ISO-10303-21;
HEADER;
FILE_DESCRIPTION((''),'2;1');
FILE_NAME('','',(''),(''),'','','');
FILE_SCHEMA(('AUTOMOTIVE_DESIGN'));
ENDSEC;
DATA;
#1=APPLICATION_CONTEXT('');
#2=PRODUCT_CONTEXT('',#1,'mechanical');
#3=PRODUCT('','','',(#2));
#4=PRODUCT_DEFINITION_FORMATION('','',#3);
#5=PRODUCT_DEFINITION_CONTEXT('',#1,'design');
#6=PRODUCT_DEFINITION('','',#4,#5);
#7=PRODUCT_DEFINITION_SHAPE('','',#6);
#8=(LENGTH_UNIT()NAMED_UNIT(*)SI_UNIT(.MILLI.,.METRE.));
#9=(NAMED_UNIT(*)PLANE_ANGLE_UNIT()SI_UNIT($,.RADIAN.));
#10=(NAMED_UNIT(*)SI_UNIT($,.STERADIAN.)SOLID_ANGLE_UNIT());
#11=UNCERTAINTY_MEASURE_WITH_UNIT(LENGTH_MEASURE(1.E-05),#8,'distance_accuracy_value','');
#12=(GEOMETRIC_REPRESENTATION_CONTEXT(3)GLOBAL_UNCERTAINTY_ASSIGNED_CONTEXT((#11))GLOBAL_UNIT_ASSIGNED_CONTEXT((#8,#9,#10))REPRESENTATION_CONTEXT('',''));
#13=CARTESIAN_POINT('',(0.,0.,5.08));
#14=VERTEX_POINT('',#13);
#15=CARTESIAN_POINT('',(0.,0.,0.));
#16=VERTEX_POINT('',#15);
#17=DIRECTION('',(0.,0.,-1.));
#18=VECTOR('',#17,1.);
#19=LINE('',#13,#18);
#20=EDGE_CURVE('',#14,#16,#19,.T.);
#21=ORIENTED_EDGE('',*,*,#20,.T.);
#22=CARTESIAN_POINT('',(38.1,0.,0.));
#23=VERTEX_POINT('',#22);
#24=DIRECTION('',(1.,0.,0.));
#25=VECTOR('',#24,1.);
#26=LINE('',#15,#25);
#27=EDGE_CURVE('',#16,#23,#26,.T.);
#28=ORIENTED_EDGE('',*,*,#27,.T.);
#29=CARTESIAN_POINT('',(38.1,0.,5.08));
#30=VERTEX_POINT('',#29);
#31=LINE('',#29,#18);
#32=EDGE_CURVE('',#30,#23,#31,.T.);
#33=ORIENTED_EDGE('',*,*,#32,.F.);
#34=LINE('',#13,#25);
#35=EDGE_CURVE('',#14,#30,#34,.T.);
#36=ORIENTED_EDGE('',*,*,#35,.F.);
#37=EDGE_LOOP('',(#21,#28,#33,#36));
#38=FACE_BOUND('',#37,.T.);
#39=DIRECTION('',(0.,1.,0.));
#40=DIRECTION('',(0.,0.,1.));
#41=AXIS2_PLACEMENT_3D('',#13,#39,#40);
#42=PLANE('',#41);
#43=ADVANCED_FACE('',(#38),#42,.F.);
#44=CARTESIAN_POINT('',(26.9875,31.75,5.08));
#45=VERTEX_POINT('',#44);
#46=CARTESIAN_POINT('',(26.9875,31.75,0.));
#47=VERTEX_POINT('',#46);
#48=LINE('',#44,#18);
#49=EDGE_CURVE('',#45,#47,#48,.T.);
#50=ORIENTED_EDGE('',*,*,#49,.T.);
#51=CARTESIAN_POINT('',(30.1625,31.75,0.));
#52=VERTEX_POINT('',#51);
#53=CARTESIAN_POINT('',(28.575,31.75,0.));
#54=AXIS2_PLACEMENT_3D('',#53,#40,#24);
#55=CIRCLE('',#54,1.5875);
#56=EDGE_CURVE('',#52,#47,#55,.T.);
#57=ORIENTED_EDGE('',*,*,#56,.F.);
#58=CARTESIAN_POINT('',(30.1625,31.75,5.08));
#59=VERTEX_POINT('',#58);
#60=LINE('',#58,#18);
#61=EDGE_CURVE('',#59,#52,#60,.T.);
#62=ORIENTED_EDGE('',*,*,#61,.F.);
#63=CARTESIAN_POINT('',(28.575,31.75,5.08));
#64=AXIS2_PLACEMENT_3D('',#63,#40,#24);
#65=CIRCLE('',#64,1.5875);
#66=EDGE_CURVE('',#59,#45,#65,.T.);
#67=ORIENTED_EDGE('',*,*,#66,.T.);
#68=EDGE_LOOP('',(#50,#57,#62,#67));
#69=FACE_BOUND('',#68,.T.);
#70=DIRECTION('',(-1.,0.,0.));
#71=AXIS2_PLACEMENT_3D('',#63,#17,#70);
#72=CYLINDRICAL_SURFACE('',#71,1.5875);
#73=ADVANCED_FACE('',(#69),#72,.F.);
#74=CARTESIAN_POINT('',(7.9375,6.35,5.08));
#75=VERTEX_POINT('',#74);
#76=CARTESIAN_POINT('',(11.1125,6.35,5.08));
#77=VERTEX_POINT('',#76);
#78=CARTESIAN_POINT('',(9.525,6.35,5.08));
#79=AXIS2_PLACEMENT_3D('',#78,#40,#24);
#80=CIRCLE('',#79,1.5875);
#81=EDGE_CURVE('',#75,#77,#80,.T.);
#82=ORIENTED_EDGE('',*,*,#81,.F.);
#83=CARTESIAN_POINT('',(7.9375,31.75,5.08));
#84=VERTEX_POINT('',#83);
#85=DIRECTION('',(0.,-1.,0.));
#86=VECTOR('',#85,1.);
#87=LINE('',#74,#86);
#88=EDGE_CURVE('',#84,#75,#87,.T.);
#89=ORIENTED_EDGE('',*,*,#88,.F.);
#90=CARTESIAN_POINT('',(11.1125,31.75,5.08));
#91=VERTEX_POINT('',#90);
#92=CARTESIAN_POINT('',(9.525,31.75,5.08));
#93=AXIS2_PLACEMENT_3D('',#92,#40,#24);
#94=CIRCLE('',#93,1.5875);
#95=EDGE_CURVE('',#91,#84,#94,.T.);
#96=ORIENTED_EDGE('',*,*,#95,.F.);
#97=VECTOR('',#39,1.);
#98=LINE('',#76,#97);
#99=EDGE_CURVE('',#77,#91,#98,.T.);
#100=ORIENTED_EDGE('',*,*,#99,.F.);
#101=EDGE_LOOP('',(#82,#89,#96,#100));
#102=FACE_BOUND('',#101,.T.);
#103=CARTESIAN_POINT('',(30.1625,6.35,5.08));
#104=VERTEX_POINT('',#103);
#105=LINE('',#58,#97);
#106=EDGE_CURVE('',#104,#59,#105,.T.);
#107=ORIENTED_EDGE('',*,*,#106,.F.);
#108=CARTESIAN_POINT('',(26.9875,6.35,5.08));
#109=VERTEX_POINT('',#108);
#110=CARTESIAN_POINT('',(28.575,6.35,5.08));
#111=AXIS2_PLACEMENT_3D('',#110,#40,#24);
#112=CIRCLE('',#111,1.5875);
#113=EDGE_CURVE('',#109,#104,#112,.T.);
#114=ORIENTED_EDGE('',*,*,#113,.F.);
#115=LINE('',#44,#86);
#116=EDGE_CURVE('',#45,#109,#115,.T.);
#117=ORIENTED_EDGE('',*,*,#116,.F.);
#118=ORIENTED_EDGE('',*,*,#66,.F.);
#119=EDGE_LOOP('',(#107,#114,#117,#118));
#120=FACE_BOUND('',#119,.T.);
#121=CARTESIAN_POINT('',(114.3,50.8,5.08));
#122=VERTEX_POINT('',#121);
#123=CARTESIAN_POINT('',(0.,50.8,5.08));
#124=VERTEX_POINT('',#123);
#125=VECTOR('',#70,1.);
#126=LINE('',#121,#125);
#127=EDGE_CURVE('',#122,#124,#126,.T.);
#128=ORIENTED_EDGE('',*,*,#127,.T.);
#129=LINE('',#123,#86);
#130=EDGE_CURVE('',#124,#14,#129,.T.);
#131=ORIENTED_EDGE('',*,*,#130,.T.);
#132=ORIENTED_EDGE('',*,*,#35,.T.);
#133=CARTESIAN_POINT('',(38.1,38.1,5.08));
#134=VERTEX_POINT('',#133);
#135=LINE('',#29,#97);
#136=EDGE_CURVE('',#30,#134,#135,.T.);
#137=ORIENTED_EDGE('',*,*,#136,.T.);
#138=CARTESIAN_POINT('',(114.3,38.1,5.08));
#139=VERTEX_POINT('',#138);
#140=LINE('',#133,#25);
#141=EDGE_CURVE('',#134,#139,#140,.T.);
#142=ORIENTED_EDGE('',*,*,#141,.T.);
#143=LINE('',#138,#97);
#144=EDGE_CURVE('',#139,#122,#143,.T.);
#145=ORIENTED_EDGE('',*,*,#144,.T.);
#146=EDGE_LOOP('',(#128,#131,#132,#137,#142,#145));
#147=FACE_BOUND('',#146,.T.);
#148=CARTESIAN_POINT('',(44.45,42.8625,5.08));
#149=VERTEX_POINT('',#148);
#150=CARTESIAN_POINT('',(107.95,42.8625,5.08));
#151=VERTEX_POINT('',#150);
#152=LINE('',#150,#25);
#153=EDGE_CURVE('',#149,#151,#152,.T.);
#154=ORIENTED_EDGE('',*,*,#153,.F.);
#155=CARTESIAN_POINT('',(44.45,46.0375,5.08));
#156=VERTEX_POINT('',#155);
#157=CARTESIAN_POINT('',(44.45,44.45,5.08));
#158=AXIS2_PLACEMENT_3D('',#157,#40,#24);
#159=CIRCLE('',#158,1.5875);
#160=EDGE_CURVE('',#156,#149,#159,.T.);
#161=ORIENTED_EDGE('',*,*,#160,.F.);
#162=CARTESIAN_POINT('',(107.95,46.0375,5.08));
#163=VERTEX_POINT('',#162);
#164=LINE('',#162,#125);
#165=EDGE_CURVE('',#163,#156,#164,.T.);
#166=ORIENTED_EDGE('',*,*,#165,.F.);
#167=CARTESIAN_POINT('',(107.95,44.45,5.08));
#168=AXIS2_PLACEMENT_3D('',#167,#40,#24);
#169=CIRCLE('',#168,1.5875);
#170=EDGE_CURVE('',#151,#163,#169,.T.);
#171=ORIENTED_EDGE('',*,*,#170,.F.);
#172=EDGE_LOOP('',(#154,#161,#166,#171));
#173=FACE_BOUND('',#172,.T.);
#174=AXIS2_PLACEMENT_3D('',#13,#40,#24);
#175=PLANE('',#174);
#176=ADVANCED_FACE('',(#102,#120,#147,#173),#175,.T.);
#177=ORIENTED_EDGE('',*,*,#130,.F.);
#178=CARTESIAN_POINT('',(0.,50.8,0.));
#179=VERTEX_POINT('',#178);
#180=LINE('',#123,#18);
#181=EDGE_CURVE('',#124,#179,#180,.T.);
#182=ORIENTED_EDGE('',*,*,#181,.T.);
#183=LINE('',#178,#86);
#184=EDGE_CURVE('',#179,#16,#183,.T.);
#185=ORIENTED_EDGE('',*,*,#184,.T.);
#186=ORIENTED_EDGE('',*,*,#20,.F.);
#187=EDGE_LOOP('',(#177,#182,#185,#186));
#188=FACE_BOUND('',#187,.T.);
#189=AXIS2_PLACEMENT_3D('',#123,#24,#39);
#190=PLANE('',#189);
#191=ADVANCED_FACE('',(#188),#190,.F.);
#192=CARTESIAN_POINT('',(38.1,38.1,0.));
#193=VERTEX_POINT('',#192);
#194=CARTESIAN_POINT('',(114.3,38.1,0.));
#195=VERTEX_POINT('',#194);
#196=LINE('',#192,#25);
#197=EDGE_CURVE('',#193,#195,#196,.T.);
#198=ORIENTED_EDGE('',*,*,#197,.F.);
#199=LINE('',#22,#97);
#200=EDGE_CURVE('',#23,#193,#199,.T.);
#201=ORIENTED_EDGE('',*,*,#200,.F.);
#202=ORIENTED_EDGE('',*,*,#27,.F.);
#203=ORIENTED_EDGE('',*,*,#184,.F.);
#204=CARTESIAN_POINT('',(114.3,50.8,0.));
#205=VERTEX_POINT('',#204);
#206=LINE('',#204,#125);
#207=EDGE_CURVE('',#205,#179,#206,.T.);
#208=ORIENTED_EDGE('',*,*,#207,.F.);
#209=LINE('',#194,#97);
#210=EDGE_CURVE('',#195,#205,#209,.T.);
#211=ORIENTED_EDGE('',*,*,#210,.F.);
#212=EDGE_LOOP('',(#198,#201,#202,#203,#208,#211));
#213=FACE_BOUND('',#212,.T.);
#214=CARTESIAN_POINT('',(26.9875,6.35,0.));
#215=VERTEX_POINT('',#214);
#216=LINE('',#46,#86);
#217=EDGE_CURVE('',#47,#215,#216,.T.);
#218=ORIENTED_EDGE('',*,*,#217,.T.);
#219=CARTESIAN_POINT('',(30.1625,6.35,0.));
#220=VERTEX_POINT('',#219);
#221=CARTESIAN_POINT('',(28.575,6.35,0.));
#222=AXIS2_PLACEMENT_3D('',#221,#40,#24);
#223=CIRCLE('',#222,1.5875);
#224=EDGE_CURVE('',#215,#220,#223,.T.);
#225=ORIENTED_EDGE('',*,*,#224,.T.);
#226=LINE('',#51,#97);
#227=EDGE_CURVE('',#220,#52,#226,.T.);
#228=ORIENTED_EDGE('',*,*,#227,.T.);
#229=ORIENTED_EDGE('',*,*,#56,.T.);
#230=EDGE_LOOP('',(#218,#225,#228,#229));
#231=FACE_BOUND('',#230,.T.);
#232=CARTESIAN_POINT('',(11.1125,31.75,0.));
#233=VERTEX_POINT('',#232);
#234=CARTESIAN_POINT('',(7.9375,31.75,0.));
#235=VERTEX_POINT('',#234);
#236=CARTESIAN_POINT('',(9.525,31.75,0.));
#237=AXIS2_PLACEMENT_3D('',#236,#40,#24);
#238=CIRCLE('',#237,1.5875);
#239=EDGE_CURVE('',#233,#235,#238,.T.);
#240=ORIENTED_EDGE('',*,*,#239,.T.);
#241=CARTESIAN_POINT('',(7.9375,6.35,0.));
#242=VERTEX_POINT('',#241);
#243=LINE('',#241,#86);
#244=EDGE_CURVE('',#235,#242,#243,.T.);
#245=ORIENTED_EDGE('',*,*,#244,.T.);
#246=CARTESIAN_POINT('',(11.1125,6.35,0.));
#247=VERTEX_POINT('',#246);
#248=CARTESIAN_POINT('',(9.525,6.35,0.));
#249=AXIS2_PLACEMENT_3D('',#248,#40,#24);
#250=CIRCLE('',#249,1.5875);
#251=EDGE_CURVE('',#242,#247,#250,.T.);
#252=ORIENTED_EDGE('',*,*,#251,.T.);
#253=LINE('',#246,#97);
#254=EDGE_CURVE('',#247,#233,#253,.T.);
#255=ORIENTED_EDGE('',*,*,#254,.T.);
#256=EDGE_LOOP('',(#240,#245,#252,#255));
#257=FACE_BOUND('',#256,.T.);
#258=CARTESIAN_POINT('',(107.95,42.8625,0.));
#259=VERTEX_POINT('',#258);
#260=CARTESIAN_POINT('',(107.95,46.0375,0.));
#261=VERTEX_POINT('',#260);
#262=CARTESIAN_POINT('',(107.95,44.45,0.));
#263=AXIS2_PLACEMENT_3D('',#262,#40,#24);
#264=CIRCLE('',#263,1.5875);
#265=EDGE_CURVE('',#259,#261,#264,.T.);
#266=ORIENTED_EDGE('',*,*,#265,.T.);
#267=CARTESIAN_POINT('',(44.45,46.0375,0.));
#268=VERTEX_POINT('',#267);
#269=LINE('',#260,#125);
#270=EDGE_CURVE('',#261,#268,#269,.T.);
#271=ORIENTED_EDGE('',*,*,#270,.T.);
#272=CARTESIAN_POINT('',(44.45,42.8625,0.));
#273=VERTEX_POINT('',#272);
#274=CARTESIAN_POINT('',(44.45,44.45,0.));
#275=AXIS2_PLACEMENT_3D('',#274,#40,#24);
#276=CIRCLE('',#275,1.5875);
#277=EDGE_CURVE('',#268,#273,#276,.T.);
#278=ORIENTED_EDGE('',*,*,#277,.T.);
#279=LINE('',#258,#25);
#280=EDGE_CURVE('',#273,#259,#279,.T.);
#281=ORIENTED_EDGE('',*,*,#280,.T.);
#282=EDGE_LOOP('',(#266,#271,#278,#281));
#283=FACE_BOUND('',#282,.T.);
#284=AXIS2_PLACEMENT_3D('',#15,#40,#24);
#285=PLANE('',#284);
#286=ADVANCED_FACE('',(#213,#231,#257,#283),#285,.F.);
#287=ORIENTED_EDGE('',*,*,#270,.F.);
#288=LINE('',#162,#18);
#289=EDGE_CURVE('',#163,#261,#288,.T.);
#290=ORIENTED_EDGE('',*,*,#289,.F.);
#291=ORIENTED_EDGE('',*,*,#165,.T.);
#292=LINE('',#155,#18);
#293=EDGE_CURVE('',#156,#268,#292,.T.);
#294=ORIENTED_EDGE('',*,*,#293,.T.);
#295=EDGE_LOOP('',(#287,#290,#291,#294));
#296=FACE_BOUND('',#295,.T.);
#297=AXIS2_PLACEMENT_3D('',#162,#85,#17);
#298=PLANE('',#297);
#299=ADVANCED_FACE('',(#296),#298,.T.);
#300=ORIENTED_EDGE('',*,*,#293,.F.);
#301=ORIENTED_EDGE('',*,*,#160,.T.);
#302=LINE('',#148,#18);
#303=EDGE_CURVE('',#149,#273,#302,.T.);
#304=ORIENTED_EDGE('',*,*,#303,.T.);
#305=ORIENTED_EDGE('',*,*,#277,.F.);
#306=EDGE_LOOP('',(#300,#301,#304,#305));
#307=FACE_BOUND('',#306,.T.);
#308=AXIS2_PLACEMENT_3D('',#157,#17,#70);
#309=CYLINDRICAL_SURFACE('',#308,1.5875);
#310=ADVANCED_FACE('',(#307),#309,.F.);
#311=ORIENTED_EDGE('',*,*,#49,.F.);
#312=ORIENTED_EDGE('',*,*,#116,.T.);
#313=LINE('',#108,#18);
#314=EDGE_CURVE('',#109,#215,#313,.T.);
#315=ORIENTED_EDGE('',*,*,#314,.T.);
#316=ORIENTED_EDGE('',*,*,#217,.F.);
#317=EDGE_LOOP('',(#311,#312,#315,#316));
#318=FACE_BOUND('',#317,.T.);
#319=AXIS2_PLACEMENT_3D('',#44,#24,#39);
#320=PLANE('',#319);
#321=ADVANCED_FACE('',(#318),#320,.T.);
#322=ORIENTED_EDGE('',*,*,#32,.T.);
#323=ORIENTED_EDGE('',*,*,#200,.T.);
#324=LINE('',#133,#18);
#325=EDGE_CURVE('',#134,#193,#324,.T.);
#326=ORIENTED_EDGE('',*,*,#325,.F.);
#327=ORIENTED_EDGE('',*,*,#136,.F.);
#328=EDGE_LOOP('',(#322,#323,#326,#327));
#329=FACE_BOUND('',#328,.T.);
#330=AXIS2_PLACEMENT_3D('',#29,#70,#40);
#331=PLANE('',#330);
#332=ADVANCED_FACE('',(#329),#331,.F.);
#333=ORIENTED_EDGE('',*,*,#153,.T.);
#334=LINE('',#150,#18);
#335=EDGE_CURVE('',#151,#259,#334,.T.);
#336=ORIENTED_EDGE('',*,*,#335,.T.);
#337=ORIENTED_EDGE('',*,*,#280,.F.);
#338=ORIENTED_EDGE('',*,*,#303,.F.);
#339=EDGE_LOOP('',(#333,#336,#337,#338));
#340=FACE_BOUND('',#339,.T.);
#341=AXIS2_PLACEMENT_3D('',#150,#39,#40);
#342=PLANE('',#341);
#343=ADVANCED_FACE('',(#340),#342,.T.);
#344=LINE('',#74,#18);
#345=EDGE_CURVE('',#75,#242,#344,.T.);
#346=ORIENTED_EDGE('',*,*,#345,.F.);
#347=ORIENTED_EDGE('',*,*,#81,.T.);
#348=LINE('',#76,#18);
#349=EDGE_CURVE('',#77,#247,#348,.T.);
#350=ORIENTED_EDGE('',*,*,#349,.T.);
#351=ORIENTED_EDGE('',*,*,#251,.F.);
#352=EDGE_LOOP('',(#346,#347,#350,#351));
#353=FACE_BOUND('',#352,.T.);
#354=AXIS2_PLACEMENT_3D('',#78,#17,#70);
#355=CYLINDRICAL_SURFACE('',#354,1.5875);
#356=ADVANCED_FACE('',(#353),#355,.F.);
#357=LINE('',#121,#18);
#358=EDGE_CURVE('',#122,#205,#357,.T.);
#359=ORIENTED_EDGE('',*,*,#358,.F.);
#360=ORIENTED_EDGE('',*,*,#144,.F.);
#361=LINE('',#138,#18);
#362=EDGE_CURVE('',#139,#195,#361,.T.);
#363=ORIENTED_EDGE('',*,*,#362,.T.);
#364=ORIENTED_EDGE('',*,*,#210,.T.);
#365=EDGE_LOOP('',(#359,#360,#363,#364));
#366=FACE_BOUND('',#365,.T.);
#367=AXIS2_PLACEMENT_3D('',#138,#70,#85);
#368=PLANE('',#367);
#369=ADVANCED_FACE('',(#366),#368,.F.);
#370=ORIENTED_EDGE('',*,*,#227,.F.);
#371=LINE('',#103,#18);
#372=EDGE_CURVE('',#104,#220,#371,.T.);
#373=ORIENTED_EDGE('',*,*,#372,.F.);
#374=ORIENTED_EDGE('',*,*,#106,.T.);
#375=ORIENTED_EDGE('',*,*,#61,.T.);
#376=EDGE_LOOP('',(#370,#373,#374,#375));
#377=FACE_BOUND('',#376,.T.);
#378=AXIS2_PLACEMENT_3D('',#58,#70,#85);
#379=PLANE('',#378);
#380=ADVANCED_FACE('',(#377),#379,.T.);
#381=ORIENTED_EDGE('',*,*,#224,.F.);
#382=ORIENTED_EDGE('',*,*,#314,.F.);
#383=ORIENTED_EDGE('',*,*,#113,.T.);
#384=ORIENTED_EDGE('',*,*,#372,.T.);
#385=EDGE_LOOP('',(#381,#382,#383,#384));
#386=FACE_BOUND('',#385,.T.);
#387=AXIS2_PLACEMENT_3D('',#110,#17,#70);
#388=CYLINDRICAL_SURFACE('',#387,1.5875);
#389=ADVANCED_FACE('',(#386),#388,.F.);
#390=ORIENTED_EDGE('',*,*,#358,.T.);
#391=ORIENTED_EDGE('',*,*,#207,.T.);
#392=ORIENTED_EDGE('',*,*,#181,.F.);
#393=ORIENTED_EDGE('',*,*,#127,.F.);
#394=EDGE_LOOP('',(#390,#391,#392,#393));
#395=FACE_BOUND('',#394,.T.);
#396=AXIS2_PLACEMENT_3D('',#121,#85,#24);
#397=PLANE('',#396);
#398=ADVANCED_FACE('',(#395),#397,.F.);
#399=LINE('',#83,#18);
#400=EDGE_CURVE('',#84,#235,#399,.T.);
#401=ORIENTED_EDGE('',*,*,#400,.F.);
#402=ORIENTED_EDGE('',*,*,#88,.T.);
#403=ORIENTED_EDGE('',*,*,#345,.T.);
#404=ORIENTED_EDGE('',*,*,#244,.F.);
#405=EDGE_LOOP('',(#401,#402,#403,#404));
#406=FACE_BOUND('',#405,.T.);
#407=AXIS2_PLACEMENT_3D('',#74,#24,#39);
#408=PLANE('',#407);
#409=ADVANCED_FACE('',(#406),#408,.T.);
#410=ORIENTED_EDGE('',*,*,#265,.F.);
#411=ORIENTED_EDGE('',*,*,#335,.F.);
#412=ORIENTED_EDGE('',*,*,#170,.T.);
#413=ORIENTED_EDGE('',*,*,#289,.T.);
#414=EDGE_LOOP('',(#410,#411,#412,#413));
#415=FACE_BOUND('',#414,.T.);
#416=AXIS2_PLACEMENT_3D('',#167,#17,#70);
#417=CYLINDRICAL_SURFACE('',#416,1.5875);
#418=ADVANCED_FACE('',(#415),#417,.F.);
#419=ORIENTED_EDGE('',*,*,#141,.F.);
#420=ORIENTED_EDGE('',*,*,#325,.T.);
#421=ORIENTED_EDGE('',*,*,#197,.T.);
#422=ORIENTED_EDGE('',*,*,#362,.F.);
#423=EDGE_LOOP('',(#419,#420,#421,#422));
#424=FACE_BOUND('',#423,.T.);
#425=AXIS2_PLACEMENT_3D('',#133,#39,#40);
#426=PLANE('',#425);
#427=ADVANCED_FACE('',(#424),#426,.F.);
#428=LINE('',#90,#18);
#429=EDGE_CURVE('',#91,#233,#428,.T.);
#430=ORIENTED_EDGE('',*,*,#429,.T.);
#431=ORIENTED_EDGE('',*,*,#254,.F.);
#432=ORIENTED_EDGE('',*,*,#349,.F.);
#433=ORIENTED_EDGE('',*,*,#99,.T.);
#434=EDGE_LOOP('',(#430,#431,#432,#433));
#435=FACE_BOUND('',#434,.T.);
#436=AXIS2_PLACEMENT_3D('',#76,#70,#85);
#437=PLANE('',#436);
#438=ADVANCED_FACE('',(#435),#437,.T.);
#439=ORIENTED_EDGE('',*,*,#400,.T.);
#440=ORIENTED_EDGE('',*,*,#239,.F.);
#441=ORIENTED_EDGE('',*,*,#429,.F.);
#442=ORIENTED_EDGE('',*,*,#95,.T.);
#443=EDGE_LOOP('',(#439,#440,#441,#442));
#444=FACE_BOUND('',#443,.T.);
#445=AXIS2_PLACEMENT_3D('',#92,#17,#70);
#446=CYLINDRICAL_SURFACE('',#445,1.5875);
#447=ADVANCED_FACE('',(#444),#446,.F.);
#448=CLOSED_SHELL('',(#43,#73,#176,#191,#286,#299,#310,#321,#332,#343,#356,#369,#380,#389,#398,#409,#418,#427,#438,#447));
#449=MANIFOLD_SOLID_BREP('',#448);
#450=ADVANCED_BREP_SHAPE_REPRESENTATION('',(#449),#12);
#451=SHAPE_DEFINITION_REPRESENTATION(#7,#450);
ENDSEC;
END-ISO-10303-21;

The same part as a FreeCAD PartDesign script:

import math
import FreeCAD as App
import Part
import Sketcher

V = App.Vector
Q = App.Units.Quantity

doc = App.newDocument("Part")
body = doc.addObject("PartDesign::Body", "Body")

# Sketch on XY plane
sketch1 = body.newObject("Sketcher::SketchObject", "Sketch")
sketch1.AttachmentSupport = (doc.getObject("XY_Plane"), [""])
sketch1.MapMode = "FlatFace"
sketch1.addGeometry([
    Part.LineSegment(V(0, 0, 0), V(38.1, 0, 0)),  # 0
    Part.LineSegment(V(38.1, 0, 0), V(38.1, 38.1, 0)),  # 1
    Part.LineSegment(V(38.1, 38.1, 0), V(114.3, 38.1, 0)),  # 2
    Part.LineSegment(V(114.3, 38.1, 0), V(114.3, 50.8, 0)),  # 3
    Part.LineSegment(V(114.3, 50.8, 0), V(0, 50.8, 0)),  # 4
    Part.LineSegment(V(0, 50.8, 0), V(0, 0, 0)),  # 5
    Part.ArcOfCircle(Part.Circle(V(9.5, 6.3, 0), V(0, 0, 1), 1.6), math.radians(180), math.radians(360)),  # 6
    Part.LineSegment(V(7.9, 6.3, 0), V(7.9, 31.8, 0)),  # 7
    Part.ArcOfCircle(Part.Circle(V(9.5, 31.8, 0), V(0, 0, 1), 1.6), math.radians(0), math.radians(180)),  # 8
    Part.LineSegment(V(11.1, 31.8, 0), V(11.1, 6.3, 0)),  # 9
    Part.ArcOfCircle(Part.Circle(V(28.6, 31.8, 0), V(0, 0, 1), 1.6), math.radians(0), math.radians(180)),  # 10
    Part.LineSegment(V(30.2, 31.8, 0), V(30.2, 6.3, 0)),  # 11
    Part.ArcOfCircle(Part.Circle(V(28.6, 6.3, 0), V(0, 0, 1), 1.6), math.radians(180), math.radians(360)),  # 12
    Part.LineSegment(V(27, 6.3, 0), V(27, 31.8, 0)),  # 13
    Part.ArcOfCircle(Part.Circle(V(108, 44.5, 0), V(0, 0, 1), 1.6), math.radians(-90), math.radians(90)),  # 14
    Part.LineSegment(V(108, 42.9, 0), V(44.5, 42.9, 0)),  # 15
    Part.ArcOfCircle(Part.Circle(V(44.5, 44.5, 0), V(0, 0, 1), 1.6), math.radians(90), math.radians(270)),  # 16
    Part.LineSegment(V(44.5, 46, 0), V(108, 46, 0)),  # 17
], False)
sketch1.addConstraint([
    Sketcher.Constraint("Coincident", 0, 2, 1, 1),
    Sketcher.Constraint("Coincident", 1, 2, 2, 1),
    Sketcher.Constraint("Coincident", 2, 2, 3, 1),
    Sketcher.Constraint("Coincident", 3, 2, 4, 1),
    Sketcher.Constraint("Coincident", 4, 2, 5, 1),
    Sketcher.Constraint("Coincident", 5, 2, 0, 1),
    Sketcher.Constraint("Tangent", 6, 1, 7, 1),
    Sketcher.Constraint("Tangent", 7, 2, 8, 2),
    Sketcher.Constraint("Tangent", 8, 1, 9, 1),
    Sketcher.Constraint("Tangent", 9, 2, 6, 2),
    Sketcher.Constraint("Tangent", 10, 1, 11, 1),
    Sketcher.Constraint("Tangent", 11, 2, 12, 2),
    Sketcher.Constraint("Tangent", 12, 1, 13, 1),
    Sketcher.Constraint("Tangent", 13, 2, 10, 2),
    Sketcher.Constraint("Tangent", 14, 1, 15, 1),
    Sketcher.Constraint("Tangent", 15, 2, 16, 2),
    Sketcher.Constraint("Tangent", 16, 1, 17, 1),
    Sketcher.Constraint("Tangent", 17, 2, 14, 2),
    Sketcher.Constraint("Horizontal", 0),
    Sketcher.Constraint("Vertical", 1),
    Sketcher.Constraint("Horizontal", 2),
    Sketcher.Constraint("Vertical", 3),
    Sketcher.Constraint("Horizontal", 4),
    Sketcher.Constraint("Vertical", 5),
    Sketcher.Constraint("Vertical", 7),
    Sketcher.Constraint("Vertical", 9),
    Sketcher.Constraint("Vertical", 11),
    Sketcher.Constraint("Vertical", 13),
    Sketcher.Constraint("Horizontal", 15),
    Sketcher.Constraint("Horizontal", 17),
    Sketcher.Constraint("Coincident", 5, 2, -1, 1),
    Sketcher.Constraint("Equal", 8, 10),
    Sketcher.Constraint("Equal", 12, 14),
    Sketcher.Constraint("Horizontal", 8, 3, 10, 3),
    Sketcher.Constraint("Horizontal", 6, 3, 12, 3),
    Sketcher.Constraint("Equal", 0, 1),
    Sketcher.Constraint("DistanceX", 2, 1, 2, 2, Q("3 in")),
    Sketcher.Constraint("DistanceY", 5, 2, 5, 1, Q("2 in")),
    Sketcher.Constraint("DistanceY", 7, 1, 7, 2, Q("1 in")),
    Sketcher.Constraint("DistanceX", 0, 1, 0, 2, Q("1.5 in")),
    Sketcher.Constraint("DistanceX", 15, 2, 15, 1, Q("2.5 in")),
    Sketcher.Constraint("Radius", 6, Q("0.0625 in")),
    Sketcher.Constraint("DistanceY", 10, 3, 14, 3, Q("0.5 in")),
    Sketcher.Constraint("DistanceY", -1, 1, 6, 3, Q("0.25 in")),
    Sketcher.Constraint("DistanceX", -1, 1, 14, 3, Q("4.25 in")),
    Sketcher.Constraint("DistanceX", 8, 3, 10, 3, Q("0.75 in")),
    Sketcher.Constraint("DistanceX", -1, 1, 6, 3, Q("0.375 in")),
])
pad1 = body.newObject("PartDesign::Pad", "Pad")
pad1.Profile = sketch1
pad1.Length = Q("0.2 in")

doc.recompute()
